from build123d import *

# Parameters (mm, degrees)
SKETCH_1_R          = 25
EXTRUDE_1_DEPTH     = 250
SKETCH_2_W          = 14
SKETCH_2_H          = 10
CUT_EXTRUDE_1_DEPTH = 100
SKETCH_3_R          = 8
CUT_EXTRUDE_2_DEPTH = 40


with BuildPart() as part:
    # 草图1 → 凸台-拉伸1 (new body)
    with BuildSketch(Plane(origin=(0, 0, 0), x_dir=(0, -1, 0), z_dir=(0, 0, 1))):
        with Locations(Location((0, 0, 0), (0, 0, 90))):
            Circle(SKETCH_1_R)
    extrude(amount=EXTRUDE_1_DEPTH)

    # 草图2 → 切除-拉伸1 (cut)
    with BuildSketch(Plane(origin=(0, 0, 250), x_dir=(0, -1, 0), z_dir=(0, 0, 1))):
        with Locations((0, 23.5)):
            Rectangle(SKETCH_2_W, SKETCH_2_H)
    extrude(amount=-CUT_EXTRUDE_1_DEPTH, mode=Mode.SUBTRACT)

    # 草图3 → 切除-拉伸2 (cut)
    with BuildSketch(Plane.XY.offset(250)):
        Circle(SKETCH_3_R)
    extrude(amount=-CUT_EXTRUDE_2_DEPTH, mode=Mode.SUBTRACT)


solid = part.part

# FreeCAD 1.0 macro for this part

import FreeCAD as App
import Part
import Sketcher
from FreeCAD import Vector
Q = App.Units.Quantity


def add_polygon(sketch, points):
    """Adds a closed chain of lines whose ends are joined by coincident constraints."""
    first, n = sketch.GeometryCount, len(points)
    for a, b in zip(points, points[1:] + points[:1]):
        sketch.addGeometry(Part.LineSegment(App.Vector(*a, 0), App.Vector(*b, 0)), False)
    for i in range(n):
        sketch.addConstraint(Sketcher.Constraint("Coincident", first + i, 2, first + (i + 1) % n, 1))

doc = App.newDocument("Part")
body = doc.addObject("PartDesign::Body", "Body")

sketch1 = body.newObject("Sketcher::SketchObject", "Sketch")
sketch1.AttachmentSupport = (doc.getObject("XY_Plane"), [""])
sketch1.MapMode = "FlatFace"
sketch1.addGeometry(Part.Circle(Vector(0, 0, 0), Vector(0, 0, 1), 25), False)
sketch1.addConstraint([
    Sketcher.Constraint("Coincident", 0, 3, -1, 1),
    Sketcher.Constraint("Diameter", 0, Q("50 mm")),
])
pad1 = body.newObject("PartDesign::Pad", "Pad")
pad1.Profile = sketch1
pad1.Length = 250

sketch2 = body.newObject("Sketcher::SketchObject", "Sketch001")
sketch2.AttachmentSupport = (doc.getObject("XY_Plane"), [""])
sketch2.MapMode = "FlatFace"
sketch2.AttachmentOffset = App.Placement(Vector(0, 0, 250), App.Rotation())
add_polygon(sketch2, [(28.5, 7), (18.5, 7), (18.5, -7), (28.5, -7)])
sketch2.addConstraint([
    Sketcher.Constraint("Horizontal", 0),
    Sketcher.Constraint("Vertical", 1),
    Sketcher.Constraint("Horizontal", 2),
    Sketcher.Constraint("Vertical", 3),
    Sketcher.Constraint("DistanceX", 0, 2, 0, 1, Q("10 mm")),
    Sketcher.Constraint("DistanceY", 1, 2, 1, 1, Q("14 mm")),
    Sketcher.Constraint("DistanceY", -1, 1, 0, 2, Q("7 mm")),
    Sketcher.Constraint("DistanceX", -1, 1, 0, 2, Q("18.5 mm")),
])
pocket1 = body.newObject("PartDesign::Pocket", "Pocket")
pocket1.Profile = sketch2
pocket1.Length = 100

sketch3 = body.newObject("Sketcher::SketchObject", "Sketch002")
sketch3.AttachmentSupport = (doc.getObject("XY_Plane"), [""])
sketch3.MapMode = "FlatFace"
sketch3.AttachmentOffset = App.Placement(Vector(0, 0, 250), App.Rotation())
sketch3.addGeometry(Part.Circle(Vector(0, 0, 0), Vector(0, 0, 1), 8), False)
sketch3.addConstraint([
    Sketcher.Constraint("Coincident", 0, 3, -1, 1),
    Sketcher.Constraint("Diameter", 0, Q("16 mm")),
])
pocket2 = body.newObject("PartDesign::Pocket", "Pocket001")
pocket2.Profile = sketch3
pocket2.Length = 40

doc.recompute()
